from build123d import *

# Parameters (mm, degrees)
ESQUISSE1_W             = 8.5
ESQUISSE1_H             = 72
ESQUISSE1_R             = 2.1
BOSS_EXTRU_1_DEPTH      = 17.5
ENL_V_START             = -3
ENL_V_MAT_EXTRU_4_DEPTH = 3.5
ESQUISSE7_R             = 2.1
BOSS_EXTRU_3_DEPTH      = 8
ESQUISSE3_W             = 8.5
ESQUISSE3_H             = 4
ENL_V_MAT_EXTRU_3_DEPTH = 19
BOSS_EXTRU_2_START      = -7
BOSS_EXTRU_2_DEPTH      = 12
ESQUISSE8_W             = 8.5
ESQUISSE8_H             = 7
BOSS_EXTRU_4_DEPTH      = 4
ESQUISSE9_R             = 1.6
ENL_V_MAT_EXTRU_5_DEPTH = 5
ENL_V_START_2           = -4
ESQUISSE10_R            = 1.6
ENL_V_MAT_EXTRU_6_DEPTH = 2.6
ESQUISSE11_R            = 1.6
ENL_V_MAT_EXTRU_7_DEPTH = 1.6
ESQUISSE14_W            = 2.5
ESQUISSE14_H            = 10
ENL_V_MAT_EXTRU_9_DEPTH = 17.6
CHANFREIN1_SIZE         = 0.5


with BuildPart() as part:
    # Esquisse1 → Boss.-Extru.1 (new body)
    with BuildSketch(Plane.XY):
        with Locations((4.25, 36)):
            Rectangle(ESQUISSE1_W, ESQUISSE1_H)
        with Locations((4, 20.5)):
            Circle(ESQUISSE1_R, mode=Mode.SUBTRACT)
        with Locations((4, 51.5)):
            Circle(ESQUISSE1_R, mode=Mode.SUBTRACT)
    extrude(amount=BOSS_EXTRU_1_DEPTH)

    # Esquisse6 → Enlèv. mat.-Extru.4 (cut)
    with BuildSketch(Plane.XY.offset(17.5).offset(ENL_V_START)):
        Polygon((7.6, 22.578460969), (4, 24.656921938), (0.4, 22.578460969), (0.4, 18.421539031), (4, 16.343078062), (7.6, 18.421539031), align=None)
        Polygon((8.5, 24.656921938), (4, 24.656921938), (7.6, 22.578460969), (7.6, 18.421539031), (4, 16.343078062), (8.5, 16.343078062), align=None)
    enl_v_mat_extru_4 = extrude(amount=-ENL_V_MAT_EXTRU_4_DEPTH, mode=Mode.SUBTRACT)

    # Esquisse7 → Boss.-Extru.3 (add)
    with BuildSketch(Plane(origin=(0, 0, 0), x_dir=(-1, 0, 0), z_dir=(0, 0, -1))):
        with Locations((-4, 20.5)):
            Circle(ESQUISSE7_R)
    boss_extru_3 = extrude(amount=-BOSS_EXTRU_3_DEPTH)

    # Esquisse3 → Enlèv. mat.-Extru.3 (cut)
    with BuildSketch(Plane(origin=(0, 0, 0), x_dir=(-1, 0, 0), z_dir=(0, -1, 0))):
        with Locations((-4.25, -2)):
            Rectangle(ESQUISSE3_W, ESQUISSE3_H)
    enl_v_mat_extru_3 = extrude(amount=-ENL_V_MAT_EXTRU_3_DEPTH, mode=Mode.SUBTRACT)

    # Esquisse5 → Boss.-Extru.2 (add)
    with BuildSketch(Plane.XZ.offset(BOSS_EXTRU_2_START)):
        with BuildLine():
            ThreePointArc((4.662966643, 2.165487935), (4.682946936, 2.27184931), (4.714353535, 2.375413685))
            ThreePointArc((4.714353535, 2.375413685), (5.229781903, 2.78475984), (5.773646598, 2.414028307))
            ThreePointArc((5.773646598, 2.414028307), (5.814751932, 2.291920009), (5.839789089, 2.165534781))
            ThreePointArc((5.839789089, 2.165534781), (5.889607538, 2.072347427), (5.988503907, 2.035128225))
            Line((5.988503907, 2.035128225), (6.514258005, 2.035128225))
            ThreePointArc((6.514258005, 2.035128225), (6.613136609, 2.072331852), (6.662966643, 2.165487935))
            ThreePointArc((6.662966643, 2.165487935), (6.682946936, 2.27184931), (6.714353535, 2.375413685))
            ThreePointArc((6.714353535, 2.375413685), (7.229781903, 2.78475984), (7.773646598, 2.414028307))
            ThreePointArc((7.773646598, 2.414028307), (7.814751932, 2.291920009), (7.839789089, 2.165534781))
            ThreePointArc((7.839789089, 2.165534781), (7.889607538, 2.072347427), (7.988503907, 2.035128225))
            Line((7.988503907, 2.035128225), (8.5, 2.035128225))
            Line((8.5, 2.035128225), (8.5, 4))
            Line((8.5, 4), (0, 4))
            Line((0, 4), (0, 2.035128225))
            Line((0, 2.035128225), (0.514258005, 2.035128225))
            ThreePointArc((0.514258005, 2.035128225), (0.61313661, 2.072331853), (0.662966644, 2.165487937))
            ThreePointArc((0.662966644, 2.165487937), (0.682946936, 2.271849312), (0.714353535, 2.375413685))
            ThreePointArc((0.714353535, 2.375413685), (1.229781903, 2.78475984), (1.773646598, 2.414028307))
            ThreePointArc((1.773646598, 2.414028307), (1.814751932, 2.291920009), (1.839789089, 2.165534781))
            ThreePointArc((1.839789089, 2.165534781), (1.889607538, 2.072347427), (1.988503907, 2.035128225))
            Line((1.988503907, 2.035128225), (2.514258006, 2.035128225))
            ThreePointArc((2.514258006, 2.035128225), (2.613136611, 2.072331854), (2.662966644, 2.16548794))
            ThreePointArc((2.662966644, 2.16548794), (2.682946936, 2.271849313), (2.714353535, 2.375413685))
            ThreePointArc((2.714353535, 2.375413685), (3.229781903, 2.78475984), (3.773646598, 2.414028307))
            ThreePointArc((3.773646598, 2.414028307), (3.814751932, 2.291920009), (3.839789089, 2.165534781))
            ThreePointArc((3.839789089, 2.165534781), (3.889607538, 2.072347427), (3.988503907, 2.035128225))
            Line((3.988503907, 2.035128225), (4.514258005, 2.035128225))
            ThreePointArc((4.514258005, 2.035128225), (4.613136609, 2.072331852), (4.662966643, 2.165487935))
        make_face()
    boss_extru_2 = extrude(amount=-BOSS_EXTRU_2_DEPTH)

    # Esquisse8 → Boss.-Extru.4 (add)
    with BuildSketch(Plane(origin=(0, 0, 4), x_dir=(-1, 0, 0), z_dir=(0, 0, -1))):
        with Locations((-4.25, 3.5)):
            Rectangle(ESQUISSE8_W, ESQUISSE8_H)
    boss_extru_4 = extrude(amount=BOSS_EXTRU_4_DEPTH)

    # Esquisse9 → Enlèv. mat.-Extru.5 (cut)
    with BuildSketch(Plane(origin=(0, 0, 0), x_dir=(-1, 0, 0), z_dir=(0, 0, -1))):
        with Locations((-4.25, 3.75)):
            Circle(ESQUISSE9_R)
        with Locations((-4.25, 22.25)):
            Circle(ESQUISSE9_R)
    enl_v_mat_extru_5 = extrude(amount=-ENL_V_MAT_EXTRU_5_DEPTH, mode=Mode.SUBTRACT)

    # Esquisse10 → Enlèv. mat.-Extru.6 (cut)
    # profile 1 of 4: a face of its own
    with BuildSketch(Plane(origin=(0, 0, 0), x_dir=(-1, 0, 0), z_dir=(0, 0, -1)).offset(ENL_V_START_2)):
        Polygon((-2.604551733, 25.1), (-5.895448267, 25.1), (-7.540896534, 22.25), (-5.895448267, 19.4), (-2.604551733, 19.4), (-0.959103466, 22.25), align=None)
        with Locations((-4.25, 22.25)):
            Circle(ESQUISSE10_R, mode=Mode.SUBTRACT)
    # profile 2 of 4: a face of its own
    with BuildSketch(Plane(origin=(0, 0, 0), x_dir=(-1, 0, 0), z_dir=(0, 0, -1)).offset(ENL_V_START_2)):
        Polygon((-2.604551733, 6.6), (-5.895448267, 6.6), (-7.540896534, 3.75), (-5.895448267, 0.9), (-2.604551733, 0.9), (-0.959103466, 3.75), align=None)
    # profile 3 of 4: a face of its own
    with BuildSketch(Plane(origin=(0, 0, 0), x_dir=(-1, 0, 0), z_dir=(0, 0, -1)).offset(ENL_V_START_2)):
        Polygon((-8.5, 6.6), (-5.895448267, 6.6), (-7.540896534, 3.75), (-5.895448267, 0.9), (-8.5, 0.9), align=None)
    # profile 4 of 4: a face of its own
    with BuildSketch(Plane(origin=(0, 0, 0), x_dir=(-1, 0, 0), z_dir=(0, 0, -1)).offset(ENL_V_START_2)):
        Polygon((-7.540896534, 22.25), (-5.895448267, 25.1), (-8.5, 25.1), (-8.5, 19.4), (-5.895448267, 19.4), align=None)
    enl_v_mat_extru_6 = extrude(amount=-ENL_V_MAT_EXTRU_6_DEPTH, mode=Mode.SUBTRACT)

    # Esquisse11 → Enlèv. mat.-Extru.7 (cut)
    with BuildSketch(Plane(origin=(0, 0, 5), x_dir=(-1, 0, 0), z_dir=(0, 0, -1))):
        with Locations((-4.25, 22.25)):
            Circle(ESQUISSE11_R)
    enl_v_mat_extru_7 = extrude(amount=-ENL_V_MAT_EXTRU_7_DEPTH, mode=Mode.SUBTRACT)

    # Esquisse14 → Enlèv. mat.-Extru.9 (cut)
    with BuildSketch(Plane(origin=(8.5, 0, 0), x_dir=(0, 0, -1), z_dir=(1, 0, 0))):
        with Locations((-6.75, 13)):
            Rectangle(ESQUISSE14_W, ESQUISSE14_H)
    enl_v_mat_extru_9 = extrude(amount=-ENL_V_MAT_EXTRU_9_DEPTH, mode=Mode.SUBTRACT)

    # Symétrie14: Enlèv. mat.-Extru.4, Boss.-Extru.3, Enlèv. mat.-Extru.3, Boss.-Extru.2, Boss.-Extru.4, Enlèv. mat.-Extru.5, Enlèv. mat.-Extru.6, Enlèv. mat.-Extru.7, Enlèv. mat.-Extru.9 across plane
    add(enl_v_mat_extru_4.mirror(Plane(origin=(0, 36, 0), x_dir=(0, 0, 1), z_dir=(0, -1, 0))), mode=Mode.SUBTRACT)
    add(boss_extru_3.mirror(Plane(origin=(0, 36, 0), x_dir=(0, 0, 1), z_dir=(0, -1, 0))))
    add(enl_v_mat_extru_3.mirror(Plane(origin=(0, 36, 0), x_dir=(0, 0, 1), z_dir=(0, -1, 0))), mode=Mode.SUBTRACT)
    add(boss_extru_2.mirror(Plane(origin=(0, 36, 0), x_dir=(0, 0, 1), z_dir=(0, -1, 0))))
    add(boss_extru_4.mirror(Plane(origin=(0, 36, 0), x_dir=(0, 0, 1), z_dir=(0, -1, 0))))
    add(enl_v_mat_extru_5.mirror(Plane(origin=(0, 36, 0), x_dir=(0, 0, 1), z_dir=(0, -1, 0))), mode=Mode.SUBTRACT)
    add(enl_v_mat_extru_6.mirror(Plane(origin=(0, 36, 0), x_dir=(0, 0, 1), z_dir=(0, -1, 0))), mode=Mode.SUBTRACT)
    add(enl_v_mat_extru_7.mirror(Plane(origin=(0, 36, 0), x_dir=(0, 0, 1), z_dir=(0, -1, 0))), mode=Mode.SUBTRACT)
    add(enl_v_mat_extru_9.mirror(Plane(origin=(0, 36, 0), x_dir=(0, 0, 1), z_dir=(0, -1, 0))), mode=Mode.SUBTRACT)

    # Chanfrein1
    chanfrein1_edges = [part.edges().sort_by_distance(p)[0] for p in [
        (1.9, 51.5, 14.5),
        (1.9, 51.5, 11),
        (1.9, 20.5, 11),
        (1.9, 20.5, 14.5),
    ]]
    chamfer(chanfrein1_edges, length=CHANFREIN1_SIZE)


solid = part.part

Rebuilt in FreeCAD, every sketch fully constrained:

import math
import FreeCAD as App
import Part
import Sketcher

V = App.Vector
Q = App.Units.Quantity


def edges_at(feature, points):
    """Names of the edges that pass closest to the given points."""
    edges = feature.Shape.Edges
    near = lambda p: min(range(len(edges)), key=lambda i: edges[i].distToShape(Part.Vertex(*p))[0])
    return sorted({f"Edge{near(p) + 1}" for p in points})


def add_polygon(sketch, points):
    """Adds a closed chain of lines whose ends are joined by coincident constraints."""
    first, n = sketch.GeometryCount, len(points)
    for a, b in zip(points, points[1:] + points[:1]):
        sketch.addGeometry(Part.LineSegment(App.Vector(*a, 0), App.Vector(*b, 0)), False)
    for i in range(n):
        sketch.addConstraint(Sketcher.Constraint("Coincident", first + i, 2, first + (i + 1) % n, 1))

doc = App.newDocument("Part")
body = doc.addObject("PartDesign::Body", "Body")

# Sketch on XY plane
sketch1 = body.newObject("Sketcher::SketchObject", "Sketch")
sketch1.AttachmentSupport = (doc.getObject("XY_Plane"), [""])
sketch1.MapMode = "FlatFace"
add_polygon(sketch1, [(0, 72), (0, 0), (8.5, 0), (8.5, 72)])  # lines 0-3
sketch1.addGeometry(Part.Circle(V(4, 20.5, 0), V(0, 0, 1), 2.1), False)  # 4
sketch1.addGeometry(Part.Circle(V(4, 51.5, 0), V(0, 0, 1), 2.1), False)  # 5
sketch1.addConstraint([
    Sketcher.Constraint("Vertical", 0),
    Sketcher.Constraint("Horizontal", 1),
    Sketcher.Constraint("Vertical", 2),
    Sketcher.Constraint("Horizontal", 3),
    Sketcher.Constraint("Coincident", 0, 2, -1, 1),
    Sketcher.Constraint("Equal", 4, 5),
    Sketcher.Constraint("Vertical", 4, 3, 5, 3),
    Sketcher.Constraint("Diameter", 4, Q("4.2 mm")),
    Sketcher.Constraint("DistanceY", 0, 2, 0, 1, Q("72 mm")),
    Sketcher.Constraint("DistanceX", 1, 1, 1, 2, Q("8.5 mm")),
    Sketcher.Constraint("DistanceX", -1, 1, 4, 3, Q("4 mm")),
    Sketcher.Constraint("DistanceY", 4, 3, 5, 3, Q("31 mm")),
    Sketcher.Constraint("DistanceY", -1, 1, 4, 3, Q("20.5 mm")),
])
pad1 = body.newObject("PartDesign::Pad", "Pad")
pad1.Profile = sketch1
pad1.Length = 17.5

# Sketch on XY plane
sketch2 = body.newObject("Sketcher::SketchObject", "Sketch001")
sketch2.AttachmentSupport = (doc.getObject("XY_Plane"), [""])
sketch2.MapMode = "FlatFace"
sketch2.AttachmentOffset = App.Placement(V(0, 0, 14.5), App.Rotation())
add_polygon(sketch2, [(4, 24.7), (0.4, 22.6), (0.4, 18.4), (4, 16.3), (8.5, 16.3), (8.5, 24.7)])  # lines 0-5
sketch2.addConstraint([
    Sketcher.Constraint("Vertical", 1),
    Sketcher.Constraint("Horizontal", 3),
    Sketcher.Constraint("Vertical", 4),
    Sketcher.Constraint("Horizontal", 5),
    Sketcher.Constraint("Vertical", 2, 2, 5, 2),
    Sketcher.Constraint("Equal", 0, 2),
    Sketcher.Constraint("Angle", 0, Q("-150 deg")),
    Sketcher.Constraint("DistanceX", 3, 1, 3, 2, Q("4.5 mm")),
    Sketcher.Constraint("DistanceX", -1, 1, 2, 2, Q("4 mm")),
    Sketcher.Constraint("DistanceX", -1, 1, 0, 2, Q("0.4 mm")),
    Sketcher.Constraint("DistanceY", 1, 2, 1, 1, Q("4.156922 mm")),
    Sketcher.Constraint("DistanceY", -1, 1, 0, 2, Q("22.578461 mm")),
])
pocket1 = body.newObject("PartDesign::Pocket", "Pocket")
pocket1.Profile = sketch2
pocket1.Length = 3.5

# Sketch on XY plane
sketch3 = body.newObject("Sketcher::SketchObject", "Sketch002")
sketch3.AttachmentSupport = (doc.getObject("XY_Plane"), [""])
sketch3.MapMode = "FlatFace"
sketch3.addGeometry(Part.Circle(V(4, 20.5, 0), V(0, 0, 1), 2.1), False)
sketch3.addConstraint([
    Sketcher.Constraint("Diameter", 0, Q("4.2 mm")),
    Sketcher.Constraint("DistanceX", -1, 1, 0, 3, Q("4 mm")),
    Sketcher.Constraint("DistanceY", -1, 1, 0, 3, Q("20.5 mm")),
])
pad2 = body.newObject("PartDesign::Pad", "Pad001")
pad2.Profile = sketch3
pad2.Length = 8

# Sketch on XZ plane
sketch4 = body.newObject("Sketcher::SketchObject", "Sketch003")
sketch4.AttachmentSupport = (doc.getObject("XZ_Plane"), [""])
sketch4.MapMode = "FlatFace"
add_polygon(sketch4, [(8.5, 0), (8.5, 4), (0, 4), (0, 0)])  # lines 0-3
sketch4.addConstraint([
    Sketcher.Constraint("Vertical", 0),
    Sketcher.Constraint("Horizontal", 1),
    Sketcher.Constraint("Vertical", 2),
    Sketcher.Constraint("Horizontal", 3),
    Sketcher.Constraint("Coincident", 2, 2, -1, 1),
    Sketcher.Constraint("DistanceY", 0, 1, 0, 2, Q("4 mm")),
    Sketcher.Constraint("DistanceX", 1, 2, 1, 1, Q("8.5 mm")),
])
pocket2 = body.newObject("PartDesign::Pocket", "Pocket001")
pocket2.Profile = sketch4
pocket2.Length = 19

# Sketch on XZ plane
sketch5 = body.newObject("Sketcher::SketchObject", "Sketch004")
sketch5.AttachmentSupport = (doc.getObject("XZ_Plane"), [""])
sketch5.MapMode = "FlatFace"
sketch5.AttachmentOffset = App.Placement(V(0, 0, -7), App.Rotation())
sketch5.addGeometry([
    Part.ArcOfCircle(Part.Circle(V(5.65, 2.04, 0), V(0, 0, 1), 1), math.radians(160.01), math.radians(172.48)),  # 0
    Part.ArcOfCircle(Part.Circle(V(5.25, 2.23, 0), V(0, 0, 1), 0.56), math.radians(19), math.radians(165)),  # 1
    Part.ArcOfCircle(Part.Circle(V(4.85, 2.04, 0), V(0, 0, 1), 1), math.radians(7.51), math.radians(22.3)),  # 2
    Part.ArcOfCircle(Part.Circle(V(5.99, 2.19, 0), V(0, 0, 1), 0.15), math.radians(-172), math.radians(-90)),  # 3
    Part.LineSegment(V(5.99, 2.04, 0), V(6.51, 2.04, 0)),  # 4
    Part.ArcOfCircle(Part.Circle(V(6.51, 2.19, 0), V(0, 0, 1), 0.15), math.radians(-90), math.radians(-8)),  # 5
    Part.ArcOfCircle(Part.Circle(V(7.65, 2.04, 0), V(0, 0, 1), 1), math.radians(160.01), math.radians(172.48)),  # 6
    Part.ArcOfCircle(Part.Circle(V(7.25, 2.23, 0), V(0, 0, 1), 0.56), math.radians(19), math.radians(165)),  # 7
    Part.ArcOfCircle(Part.Circle(V(6.85, 2.04, 0), V(0, 0, 1), 1), math.radians(7.51), math.radians(22.3)),  # 8
    Part.ArcOfCircle(Part.Circle(V(7.99, 2.19, 0), V(0, 0, 1), 0.15), math.radians(-172), math.radians(-90)),  # 9
    Part.LineSegment(V(7.99, 2.04, 0), V(8.5, 2.04, 0)),  # 10
    Part.LineSegment(V(8.5, 2.04, 0), V(8.5, 4, 0)),  # 11
    Part.LineSegment(V(8.5, 4, 0), V(0, 4, 0)),  # 12
    Part.LineSegment(V(0, 4, 0), V(0, 2.04, 0)),  # 13
    Part.LineSegment(V(0, 2.04, 0), V(0.51, 2.04, 0)),  # 14
    Part.ArcOfCircle(Part.Circle(V(0.51, 2.19, 0), V(0, 0, 1), 0.15), math.radians(-90), math.radians(-8)),  # 15
    Part.ArcOfCircle(Part.Circle(V(1.65, 2.04, 0), V(0, 0, 1), 1), math.radians(160.01), math.radians(172.48)),  # 16
    Part.ArcOfCircle(Part.Circle(V(1.25, 2.23, 0), V(0, 0, 1), 0.56), math.radians(19), math.radians(165)),  # 17
    Part.ArcOfCircle(Part.Circle(V(0.85, 2.04, 0), V(0, 0, 1), 1), math.radians(7.51), math.radians(22.3)),  # 18
    Part.ArcOfCircle(Part.Circle(V(1.99, 2.19, 0), V(0, 0, 1), 0.15), math.radians(-172), math.radians(-90)),  # 19
    Part.LineSegment(V(1.99, 2.04, 0), V(2.51, 2.04, 0)),  # 20
    Part.ArcOfCircle(Part.Circle(V(2.51, 2.19, 0), V(0, 0, 1), 0.15), math.radians(-90), math.radians(-8)),  # 21
    Part.ArcOfCircle(Part.Circle(V(3.65, 2.04, 0), V(0, 0, 1), 1), math.radians(160.01), math.radians(172.48)),  # 22
    Part.ArcOfCircle(Part.Circle(V(3.25, 2.23, 0), V(0, 0, 1), 0.56), math.radians(19), math.radians(165)),  # 23
    Part.ArcOfCircle(Part.Circle(V(2.85, 2.04, 0), V(0, 0, 1), 1), math.radians(7.51), math.radians(22.3)),  # 24
    Part.ArcOfCircle(Part.Circle(V(3.99, 2.19, 0), V(0, 0, 1), 0.15), math.radians(-172), math.radians(-90)),  # 25
    Part.LineSegment(V(3.99, 2.04, 0), V(4.51, 2.04, 0)),  # 26
    Part.ArcOfCircle(Part.Circle(V(4.51, 2.19, 0), V(0, 0, 1), 0.15), math.radians(-90), math.radians(-8)),  # 27
], False)
sketch5.addConstraint([
    Sketcher.Constraint("Coincident", 0, 1, 1, 2),
    Sketcher.Constraint("Coincident", 1, 1, 2, 2),
    Sketcher.Constraint("Tangent", 2, 1, 3, 1),
    Sketcher.Constraint("Tangent", 3, 2, 4, 1),
    Sketcher.Constraint("Tangent", 4, 2, 5, 1),
    Sketcher.Constraint("Tangent", 5, 2, 6, 2),
    Sketcher.Constraint("Coincident", 6, 1, 7, 2),
    Sketcher.Constraint("Coincident", 7, 1, 8, 2),
    Sketcher.Constraint("Tangent", 8, 1, 9, 1),
    Sketcher.Constraint("Tangent", 9, 2, 10, 1),
    Sketcher.Constraint("Coincident", 10, 2, 11, 1),
    Sketcher.Constraint("Coincident", 11, 2, 12, 1),
    Sketcher.Constraint("Coincident", 12, 2, 13, 1),
    Sketcher.Constraint("Coincident", 13, 2, 14, 1),
    Sketcher.Constraint("Tangent", 14, 2, 15, 1),
    Sketcher.Constraint("Tangent", 15, 2, 16, 2),
    Sketcher.Constraint("Coincident", 16, 1, 17, 2),
    Sketcher.Constraint("Coincident", 17, 1, 18, 2),
    Sketcher.Constraint("Tangent", 18, 1, 19, 1),
    Sketcher.Constraint("Tangent", 19, 2, 20, 1),
    Sketcher.Constraint("Tangent", 20, 2, 21, 1),
    Sketcher.Constraint("Tangent", 21, 2, 22, 2),
    Sketcher.Constraint("Coincident", 22, 1, 23, 2),
    Sketcher.Constraint("Coincident", 23, 1, 24, 2),
    Sketcher.Constraint("Tangent", 24, 1, 25, 1),
    Sketcher.Constraint("Tangent", 25, 2, 26, 1),
    Sketcher.Constraint("Tangent", 26, 2, 27, 1),
    Sketcher.Constraint("Tangent", 27, 2, 0, 2),
    Sketcher.Constraint("Horizontal", 4),
    Sketcher.Constraint("Horizontal", 10),
    Sketcher.Constraint("Vertical", 11),
    Sketcher.Constraint("Horizontal", 12),
    Sketcher.Constraint("Vertical", 13),
    Sketcher.Constraint("Horizontal", 14),
    Sketcher.Constraint("Horizontal", 20),
    Sketcher.Constraint("Horizontal", 26),
    Sketcher.Constraint("Equal", 3, 5),
    Sketcher.Constraint("Equal", 0, 6),
    Sketcher.Constraint("Equal", 1, 7),
    Sketcher.Constraint("Equal", 2, 8),
    Sketcher.Constraint("Equal", 5, 9),
    Sketcher.Constraint("Equal", 9, 15),
    Sketcher.Constraint("Equal", 6, 16),
    Sketcher.Constraint("Equal", 7, 17),
    Sketcher.Constraint("Equal", 8, 18),
    Sketcher.Constraint("Equal", 15, 19),
    Sketcher.Constraint("Equal", 19, 21),
    Sketcher.Constraint("Equal", 16, 22),
    Sketcher.Constraint("Equal", 17, 23),
    Sketcher.Constraint("Equal", 18, 24),
    Sketcher.Constraint("Equal", 21, 25),
    Sketcher.Constraint("Equal", 25, 27),
    Sketcher.Constraint("PointOnObject", 12, 2, -2),
    Sketcher.Constraint("Horizontal", 0, 3, 2, 3),
    Sketcher.Constraint("Horizontal", 2, 3, 6, 3),
    Sketcher.Constraint("Horizontal", 1, 3, 7, 3),
    Sketcher.Constraint("Horizontal", 6, 3, 8, 3),
    Sketcher.Constraint("Horizontal", 5, 3, 9, 3),
    Sketcher.Constraint("Horizontal", 9, 3, 15, 3),
    Sketcher.Constraint("Horizontal", 8, 3, 16, 3),
    Sketcher.Constraint("Horizontal", 7, 3, 17, 3),
    Sketcher.Constraint("Horizontal", 16, 3, 18, 3),
    Sketcher.Constraint("Horizontal", 15, 3, 19, 3),
    Sketcher.Constraint("Horizontal", 18, 3, 22, 3),
    Sketcher.Constraint("Horizontal", 17, 3, 23, 3),
    Sketcher.Constraint("Horizontal", 22, 3, 24, 3),
    Sketcher.Constraint("Horizontal", 21, 3, 25, 3),
    Sketcher.Constraint("Horizontal", 24, 3, 3, 2),
    Sketcher.Constraint("Horizontal", 0, 1, 6, 1),
    Sketcher.Constraint("Horizontal", 1, 1, 7, 1),
    Sketcher.Constraint("Horizontal", 6, 1, 16, 1),
    Sketcher.Constraint("Horizontal", 7, 1, 17, 1),
    Sketcher.Constraint("Horizontal", 16, 1, 22, 1),
    Sketcher.Constraint("Horizontal", 17, 1, 23, 1),
    Sketcher.Constraint("Equal", 4, 20),
    Sketcher.Constraint("Equal", 20, 26),
    Sketcher.Constraint("Radius", 3, Q("0.15 mm")),
    Sketcher.Constraint("DistanceX", 12, 2, 12, 1, Q("8.5 mm")),
    Sketcher.Constraint("DistanceY", -1, 1, 11, 2, Q("4 mm")),
    Sketcher.Constraint("Radius", 1, Q("0.555 mm")),
    Sketcher.Constraint("DistanceX", 0, 3, 6, 3, Q("2 mm")),
    Sketcher.Constraint("DistanceX", 1, 3, 0, 3, Q("0.4 mm")),
    Sketcher.Constraint("DistanceX", 2, 3, 1, 3, Q("0.4 mm")),
    Sketcher.Constraint("DistanceX", -1, 1, 0, 3, Q("5.65 mm")),
    Sketcher.Constraint("Radius", 0, Q("0.995605 mm")),
    Sketcher.Constraint("Radius", 2, Q("0.998343 mm")),
    Sketcher.Constraint("DistanceY", 0, 3, 1, 3, Q("0.195 mm")),
    Sketcher.Constraint("DistanceY", 11, 1, 11, 2, Q("1.964872 mm")),
])
pad3 = body.newObject("PartDesign::Pad", "Pad002")
pad3.Profile = sketch5
pad3.Length = 12
pad3.Reversed = True

# Sketch on XY plane
sketch6 = body.newObject("Sketcher::SketchObject", "Sketch005")
sketch6.AttachmentSupport = (doc.getObject("XY_Plane"), [""])
sketch6.MapMode = "FlatFace"
sketch6.AttachmentOffset = App.Placement(V(0, 0, 4), App.Rotation())
add_polygon(sketch6, [(8, 7), (8, 0), (0, 0), (0, 7)])  # lines 0-3
sketch6.addConstraint([
    Sketcher.Constraint("Vertical", 0),
    Sketcher.Constraint("Horizontal", 1),
    Sketcher.Constraint("Vertical", 2),
    Sketcher.Constraint("Horizontal", 3),
    Sketcher.Constraint("Coincident", 1, 2, -1, 1),
    Sketcher.Constraint("DistanceY", 0, 2, 0, 1, Q("7 mm")),
    Sketcher.Constraint("DistanceX", 1, 2, 1, 1, Q("8.5 mm")),
])
pad4 = body.newObject("PartDesign::Pad", "Pad003")
pad4.Profile = sketch6
pad4.Length = 4
pad4.Reversed = True

# Sketch on XY plane
sketch7 = body.newObject("Sketcher::SketchObject", "Sketch006")
sketch7.AttachmentSupport = (doc.getObject("XY_Plane"), [""])
sketch7.MapMode = "FlatFace"
sketch7.addGeometry([
    Part.Circle(V(4.2, 3.8, 0), V(0, 0, 1), 1.6),
    Part.Circle(V(4.2, 22.2, 0), V(0, 0, 1), 1.6),
], False)
sketch7.addConstraint([
    Sketcher.Constraint("Equal", 0, 1),
    Sketcher.Constraint("Vertical", 0, 3, 1, 3),
    Sketcher.Constraint("Diameter", 0, Q("3.2 mm")),
    Sketcher.Constraint("DistanceY", 0, 3, 1, 3, Q("18.5 mm")),
    Sketcher.Constraint("DistanceX", -1, 1, 0, 3, Q("4.25 mm")),
    Sketcher.Constraint("DistanceY", -1, 1, 0, 3, Q("3.75 mm")),
])
pocket3 = body.newObject("PartDesign::Pocket", "Pocket002")
pocket3.Profile = sketch7
pocket3.Length = 5
pocket3.Reversed = True

# Sketch on XY plane
sketch8 = body.newObject("Sketcher::SketchObject", "Sketch007")
sketch8.AttachmentSupport = (doc.getObject("XY_Plane"), [""])
sketch8.MapMode = "FlatFace"
sketch8.AttachmentOffset = App.Placement(V(0, 0, 4), App.Rotation())
add_polygon(sketch8, [(2.6, 25.1), (8.5, 25.1), (8.5, 19.4), (2.6, 19.4), (1, 22.2)])  # lines 0-4
sketch8.addGeometry(Part.Circle(V(4.2, 22.2, 0), V(0, 0, 1), 1.6), False)  # 5
add_polygon(sketch8, [(2.6, 6.6), (8.5, 6.6), (8.5, 0.9), (2.6, 0.9), (1, 3.8)])  # lines 6-10
sketch8.addConstraint([
    Sketcher.Constraint("Horizontal", 0),
    Sketcher.Constraint("Vertical", 1),
    Sketcher.Constraint("Horizontal", 2),
    Sketcher.Constraint("Horizontal", 6),
    Sketcher.Constraint("Vertical", 7),
    Sketcher.Constraint("Horizontal", 8),
    Sketcher.Constraint("Parallel", 3, 9),
    Sketcher.Constraint("Parallel", 4, 10),
    Sketcher.Constraint("Horizontal", 5, 3, 3, 2),
    Sketcher.Constraint("Vertical", 2, 2, 4, 2),
    Sketcher.Constraint("Vertical", 1, 2, 6, 2),
    Sketcher.Constraint("Vertical", 4, 2, 8, 2),
    Sketcher.Constraint("Vertical", 3, 2, 9, 2),
    Sketcher.Constraint("Vertical", 8, 2, 10, 2),
    Sketcher.Constraint("Equal", 3, 4),
    Sketcher.Constraint("Diameter", 5, Q("3.2 mm")),
    Sketcher.Constraint("Angle", 3, Q("120 deg")),
    Sketcher.Constraint("DistanceY", 1, 2, 1, 1, Q("5.7 mm")),
    Sketcher.Constraint("DistanceX", -1, 1, 0, 2, Q("8.5 mm")),
    Sketcher.Constraint("DistanceY", -1, 1, 0, 2, Q("25.1 mm")),
    Sketcher.Constraint("DistanceY", -1, 1, 6, 2, Q("6.6 mm")),
    Sketcher.Constraint("DistanceX", -1, 1, 5, 3, Q("4.25 mm")),
    Sketcher.Constraint("DistanceX", 0, 1, 0, 2, Q("5.895448 mm")),
])
pocket4 = body.newObject("PartDesign::Pocket", "Pocket003")
pocket4.Profile = sketch8
pocket4.Length = 2.6
pocket4.Reversed = True

# Sketch on XY plane
sketch9 = body.newObject("Sketcher::SketchObject", "Sketch008")
sketch9.AttachmentSupport = (doc.getObject("XY_Plane"), [""])
sketch9.MapMode = "FlatFace"
sketch9.AttachmentOffset = App.Placement(V(0, 0, 5), App.Rotation())
sketch9.addGeometry(Part.Circle(V(4.2, 22.2, 0), V(0, 0, 1), 1.6), False)
sketch9.addConstraint([
    Sketcher.Constraint("Diameter", 0, Q("3.2 mm")),
    Sketcher.Constraint("DistanceX", -1, 1, 0, 3, Q("4.25 mm")),
    Sketcher.Constraint("DistanceY", -1, 1, 0, 3, Q("22.25 mm")),
])
pocket5 = body.newObject("PartDesign::Pocket", "Pocket004")
pocket5.Profile = sketch9
pocket5.Length = 1.6
pocket5.Reversed = True

# Sketch on YZ plane
sketch10 = body.newObject("Sketcher::SketchObject", "Sketch009")
sketch10.AttachmentSupport = (doc.getObject("YZ_Plane"), [""])
sketch10.MapMode = "FlatFace"
sketch10.AttachmentOffset = App.Placement(V(0, 0, 8.5), App.Rotation())
add_polygon(sketch10, [(18, 8), (8, 8), (8, 5.5), (18, 5.5)])  # lines 0-3
sketch10.addConstraint([
    Sketcher.Constraint("Horizontal", 0),
    Sketcher.Constraint("Vertical", 1),
    Sketcher.Constraint("Horizontal", 2),
    Sketcher.Constraint("Vertical", 3),
    Sketcher.Constraint("DistanceX", 0, 2, 0, 1, Q("10 mm")),
    Sketcher.Constraint("DistanceY", 1, 2, 1, 1, Q("2.5 mm")),
    Sketcher.Constraint("DistanceX", -1, 1, 0, 2, Q("8 mm")),
    Sketcher.Constraint("DistanceY", -1, 1, 0, 2, Q("8 mm")),
])
pocket6 = body.newObject("PartDesign::Pocket", "Pocket005")
pocket6.Profile = sketch10
pocket6.Length = 17.6
doc.recompute()

datumplane = body.newObject("PartDesign::Plane", "DatumPlane")
datumplane.AttachmentSupport = (doc.getObject("XZ_Plane"), [""])
datumplane.MapMode = "FlatFace"
datumplane.AttachmentOffset = App.Placement(V(0, 0, -36), App.Rotation())
mirrored = body.newObject("PartDesign::Mirrored", "Mirrored")
mirrored.Originals = [pocket1, pad2, pocket2, pad3, pad4, pocket3, pocket4, pocket5, pocket6]
mirrored.MirrorPlane = (datumplane, [""])
body.Tip = mirrored
doc.recompute()

chamfer = body.newObject("PartDesign::Chamfer", "Chamfer")
chamfer.Base = (mirrored, edges_at(mirrored, [
    (1.9, 51.5, 14.5),
    (1.9, 51.5, 11),
    (1.9, 20.5, 11),
    (1.9, 20.5, 14.5),
]))
chamfer.Size = 0.5

doc.recompute()
